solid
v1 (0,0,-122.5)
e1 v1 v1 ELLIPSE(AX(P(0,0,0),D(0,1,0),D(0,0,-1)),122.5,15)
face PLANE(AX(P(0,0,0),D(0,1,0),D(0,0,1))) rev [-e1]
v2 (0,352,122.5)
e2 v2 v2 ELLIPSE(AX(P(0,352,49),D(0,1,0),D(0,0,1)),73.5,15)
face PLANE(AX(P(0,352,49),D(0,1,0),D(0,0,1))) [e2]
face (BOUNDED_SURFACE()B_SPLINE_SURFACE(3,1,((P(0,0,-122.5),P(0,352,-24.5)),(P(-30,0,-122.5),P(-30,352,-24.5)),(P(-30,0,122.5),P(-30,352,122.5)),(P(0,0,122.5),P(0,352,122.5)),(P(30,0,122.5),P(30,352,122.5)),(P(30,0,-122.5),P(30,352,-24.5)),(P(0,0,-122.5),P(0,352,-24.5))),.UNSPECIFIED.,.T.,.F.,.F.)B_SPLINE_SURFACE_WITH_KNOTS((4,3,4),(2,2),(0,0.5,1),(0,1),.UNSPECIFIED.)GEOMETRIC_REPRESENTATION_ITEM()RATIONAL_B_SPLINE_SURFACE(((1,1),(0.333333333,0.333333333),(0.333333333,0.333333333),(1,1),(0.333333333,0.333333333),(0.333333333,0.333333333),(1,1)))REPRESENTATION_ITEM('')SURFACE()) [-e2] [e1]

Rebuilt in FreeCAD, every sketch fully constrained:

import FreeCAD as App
import Part
import Sketcher
from FreeCAD import Vector

doc = App.newDocument("Part")
body = doc.addObject("PartDesign::Body", "Body")

# Sketch on XZ plane
sketch1 = doc.addObject("Sketcher::SketchObject", "Sketch")
body.addObject(sketch1)
sketch1.AttachmentSupport = (doc.XZ_Plane, [""])
sketch1.MapMode = "FlatFace"
sketch1.addGeometry(Part.Ellipse(Vector(0, -122.5, 0), Vector(15, 0, 0), Vector(0, 0, 0)), False)
sketch1.addConstraint(Sketcher.Constraint("Block", 0))

# Sketch on XZ plane
sketch2 = doc.addObject("Sketcher::SketchObject", "Sketch001")
body.addObject(sketch2)
sketch2.AttachmentSupport = (doc.XZ_Plane, [""])
sketch2.MapMode = "FlatFace"
sketch2.AttachmentOffset = App.Placement(Vector(0, 0, -352), App.Rotation())
sketch2.addGeometry(Part.Ellipse(Vector(0, 122.5, 0), Vector(-15, 49, 0), Vector(0, 49, 0)), False)
sketch2.addConstraint(Sketcher.Constraint("Block", 0))

additiveloft = doc.addObject("PartDesign::AdditiveLoft", "AdditiveLoft")
body.addObject(additiveloft)
additiveloft.Profile = sketch1
additiveloft.Sections = [sketch2]

doc.recompute()
